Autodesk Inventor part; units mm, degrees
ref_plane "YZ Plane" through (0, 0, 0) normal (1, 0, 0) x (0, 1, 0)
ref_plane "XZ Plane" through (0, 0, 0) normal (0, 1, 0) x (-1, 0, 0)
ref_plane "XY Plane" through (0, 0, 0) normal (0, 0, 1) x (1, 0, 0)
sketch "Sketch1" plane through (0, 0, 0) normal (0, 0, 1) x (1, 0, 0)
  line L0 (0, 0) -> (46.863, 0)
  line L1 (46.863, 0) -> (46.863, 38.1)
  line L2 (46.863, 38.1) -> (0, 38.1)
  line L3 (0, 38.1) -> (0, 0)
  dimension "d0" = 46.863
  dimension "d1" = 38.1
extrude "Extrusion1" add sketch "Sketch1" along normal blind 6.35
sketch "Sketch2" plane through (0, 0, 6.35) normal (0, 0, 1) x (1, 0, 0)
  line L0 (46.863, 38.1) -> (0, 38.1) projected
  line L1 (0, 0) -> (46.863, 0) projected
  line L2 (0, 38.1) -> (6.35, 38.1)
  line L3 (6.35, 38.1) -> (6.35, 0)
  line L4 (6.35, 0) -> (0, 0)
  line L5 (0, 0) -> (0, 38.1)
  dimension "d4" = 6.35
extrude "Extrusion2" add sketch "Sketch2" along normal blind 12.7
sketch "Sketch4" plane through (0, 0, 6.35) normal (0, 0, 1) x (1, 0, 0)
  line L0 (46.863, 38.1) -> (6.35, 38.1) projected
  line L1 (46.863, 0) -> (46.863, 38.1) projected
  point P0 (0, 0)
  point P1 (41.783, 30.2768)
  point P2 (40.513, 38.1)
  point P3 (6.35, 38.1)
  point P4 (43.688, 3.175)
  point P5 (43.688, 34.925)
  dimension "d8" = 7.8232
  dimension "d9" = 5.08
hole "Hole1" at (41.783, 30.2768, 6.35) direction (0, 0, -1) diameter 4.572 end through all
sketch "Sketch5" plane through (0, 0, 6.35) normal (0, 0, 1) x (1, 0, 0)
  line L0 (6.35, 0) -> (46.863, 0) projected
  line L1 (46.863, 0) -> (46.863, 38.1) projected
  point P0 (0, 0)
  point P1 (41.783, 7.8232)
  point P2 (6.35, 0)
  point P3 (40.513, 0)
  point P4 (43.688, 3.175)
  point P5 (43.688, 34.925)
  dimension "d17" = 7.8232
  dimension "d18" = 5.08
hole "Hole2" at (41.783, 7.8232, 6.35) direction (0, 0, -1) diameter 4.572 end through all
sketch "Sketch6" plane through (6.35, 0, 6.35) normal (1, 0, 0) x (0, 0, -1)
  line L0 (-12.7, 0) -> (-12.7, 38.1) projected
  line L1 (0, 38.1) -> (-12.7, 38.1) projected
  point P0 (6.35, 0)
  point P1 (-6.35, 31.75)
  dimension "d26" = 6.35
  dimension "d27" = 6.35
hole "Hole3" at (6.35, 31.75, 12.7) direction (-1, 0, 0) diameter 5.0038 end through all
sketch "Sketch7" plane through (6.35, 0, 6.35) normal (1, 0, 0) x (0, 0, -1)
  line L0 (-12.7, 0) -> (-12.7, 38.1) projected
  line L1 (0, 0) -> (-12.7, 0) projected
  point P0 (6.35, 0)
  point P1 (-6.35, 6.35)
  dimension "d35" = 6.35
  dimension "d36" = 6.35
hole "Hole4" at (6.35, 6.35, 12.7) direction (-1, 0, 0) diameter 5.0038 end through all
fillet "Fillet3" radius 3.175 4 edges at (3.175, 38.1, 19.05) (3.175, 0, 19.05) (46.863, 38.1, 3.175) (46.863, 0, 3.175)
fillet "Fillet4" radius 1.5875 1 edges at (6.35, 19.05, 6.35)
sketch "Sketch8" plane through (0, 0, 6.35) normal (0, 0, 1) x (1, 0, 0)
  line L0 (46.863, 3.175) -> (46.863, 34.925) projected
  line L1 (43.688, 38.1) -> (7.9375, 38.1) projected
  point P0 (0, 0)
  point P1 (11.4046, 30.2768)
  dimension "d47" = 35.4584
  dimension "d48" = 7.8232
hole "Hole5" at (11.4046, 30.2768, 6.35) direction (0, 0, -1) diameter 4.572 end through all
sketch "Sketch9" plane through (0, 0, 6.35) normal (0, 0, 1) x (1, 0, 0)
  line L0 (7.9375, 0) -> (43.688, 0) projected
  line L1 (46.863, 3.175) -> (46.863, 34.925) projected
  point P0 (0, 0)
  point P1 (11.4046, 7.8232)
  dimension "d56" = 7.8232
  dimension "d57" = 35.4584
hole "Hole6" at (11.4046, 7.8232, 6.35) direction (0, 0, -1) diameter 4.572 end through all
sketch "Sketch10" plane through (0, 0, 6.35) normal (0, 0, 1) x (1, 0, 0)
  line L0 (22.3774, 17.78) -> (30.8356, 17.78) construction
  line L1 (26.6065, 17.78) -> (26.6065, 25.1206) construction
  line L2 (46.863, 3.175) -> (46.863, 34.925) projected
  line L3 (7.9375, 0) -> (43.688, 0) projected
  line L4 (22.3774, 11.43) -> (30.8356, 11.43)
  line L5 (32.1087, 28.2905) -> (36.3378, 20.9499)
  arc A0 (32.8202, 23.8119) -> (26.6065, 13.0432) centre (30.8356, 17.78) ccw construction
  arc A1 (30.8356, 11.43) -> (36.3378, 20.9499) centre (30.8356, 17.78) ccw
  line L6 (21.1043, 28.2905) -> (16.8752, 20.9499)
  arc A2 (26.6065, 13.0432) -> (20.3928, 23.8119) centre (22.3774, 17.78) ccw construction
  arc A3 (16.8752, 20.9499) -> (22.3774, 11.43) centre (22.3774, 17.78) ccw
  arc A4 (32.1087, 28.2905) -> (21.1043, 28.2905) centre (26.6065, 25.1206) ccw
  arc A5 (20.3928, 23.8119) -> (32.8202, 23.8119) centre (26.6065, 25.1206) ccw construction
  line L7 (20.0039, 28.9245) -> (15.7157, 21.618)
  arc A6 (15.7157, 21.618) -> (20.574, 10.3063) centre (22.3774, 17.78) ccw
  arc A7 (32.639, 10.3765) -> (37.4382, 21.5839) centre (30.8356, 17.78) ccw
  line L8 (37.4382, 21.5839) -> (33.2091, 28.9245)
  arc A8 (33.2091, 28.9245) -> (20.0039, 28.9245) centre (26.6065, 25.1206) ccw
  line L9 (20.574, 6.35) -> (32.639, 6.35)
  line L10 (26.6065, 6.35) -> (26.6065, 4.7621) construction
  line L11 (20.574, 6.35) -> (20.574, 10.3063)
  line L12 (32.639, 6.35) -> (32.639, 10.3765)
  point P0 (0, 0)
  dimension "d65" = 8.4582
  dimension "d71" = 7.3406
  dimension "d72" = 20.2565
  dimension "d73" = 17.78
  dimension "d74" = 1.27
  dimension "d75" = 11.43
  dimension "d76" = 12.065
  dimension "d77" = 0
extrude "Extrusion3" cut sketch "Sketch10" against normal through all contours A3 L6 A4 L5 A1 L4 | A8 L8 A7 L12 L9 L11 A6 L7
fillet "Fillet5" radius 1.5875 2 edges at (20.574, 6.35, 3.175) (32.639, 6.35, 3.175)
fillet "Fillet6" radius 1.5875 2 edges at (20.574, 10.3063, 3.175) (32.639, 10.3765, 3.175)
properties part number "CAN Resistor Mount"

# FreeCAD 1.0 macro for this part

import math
import FreeCAD as App
import Part
import Sketcher
Q = App.Units.Quantity


def edges_at(feature, points):
    """Names of the edges that pass closest to the given points."""
    edges = feature.Shape.Edges
    near = lambda p: min(range(len(edges)), key=lambda i: edges[i].distToShape(Part.Vertex(*p))[0])
    return sorted({f"Edge{near(p) + 1}" for p in points})

doc = App.newDocument("Part")
params = doc.addObject("Spreadsheet::Sheet", "Params")
for row, (alias, value) in enumerate([
    ("sketch1_height", "1.5 in"),
    ("sketch1_width", "1.845 in"),
    ("pad1_length", "0.25 in"),
    ("sketch2_width", "0.25 in"),
    ("sketch2_height", "1.5 in"),
    ("pad2_length", "0.5 in"),
    ("sketch3_diameter", "0.18 in"),
    ("hole_diameter", "0.18 in"),
    ("sketch4_diameter", "0.18 in"),
    ("hole2_diameter", "0.18 in"),
    ("sketch5_diameter", "0.197 in"),
    ("hole3_diameter", "0.197 in"),
    ("sketch6_diameter", "0.197 in"),
    ("hole4_diameter", "0.197 in"),
    ("fillet_radius", "0.125 in"),
    ("fillet2_radius", "0.0625 in"),
    ("sketch7_diameter", "0.18 in"),
    ("hole5_diameter", "0.18 in"),
    ("sketch8_diameter", "0.18 in"),
    ("hole6_diameter", "0.18 in"),
    ("sketch9_radius", "0.3 in"),
    ("sketch9_width", "0.475 in"),
    ("fillet3_radius", "0.0625 in"),
    ("fillet4_radius", "0.0625 in"),
], start=1):
    params.set(f"A{row}", alias)
    params.set(f"B{row}", "=" + value)
    params.setAlias(f"B{row}", alias)

body = doc.addObject("PartDesign::Body", "Body")

sketch1 = body.newObject("Sketcher::SketchObject", "Sketch")
sketch1.AttachmentSupport = (doc.getObject("XY_Plane"), [""])
sketch1.MapMode = "FlatFace"
sketch1.addGeometry([
    Part.LineSegment(App.Vector(0, 38, 0), App.Vector(0, 0, 0)),
    Part.LineSegment(App.Vector(0, 0, 0), App.Vector(47, 0, 0)),
    Part.LineSegment(App.Vector(47, 0, 0), App.Vector(47, 38, 0)),
    Part.LineSegment(App.Vector(47, 38, 0), App.Vector(0, 38, 0)),
], False)
sketch1.addConstraint([
    Sketcher.Constraint("Coincident", 0, 2, 1, 1),
    Sketcher.Constraint("Coincident", 1, 2, 2, 1),
    Sketcher.Constraint("Coincident", 2, 2, 3, 1),
    Sketcher.Constraint("Coincident", 3, 2, 0, 1),
    Sketcher.Constraint("Vertical", 0),
    Sketcher.Constraint("Horizontal", 1),
    Sketcher.Constraint("Vertical", 2),
    Sketcher.Constraint("Horizontal", 3),
    Sketcher.Constraint("Coincident", 0, 2, -1, 1),
    Sketcher.Constraint("DistanceY", 0, 2, 0, 1, Q("1.5 in")),
    Sketcher.Constraint("DistanceX", 1, 1, 1, 2, Q("1.845 in")),
])
sketch1.setExpression("Constraints[9]", "Params.sketch1_height")
sketch1.setExpression("Constraints[10]", "Params.sketch1_width")
pad1 = body.newObject("PartDesign::Pad", "Pad")
pad1.Profile = sketch1
pad1.setExpression("Length", "Params.pad1_length")

sketch2 = body.newObject("Sketcher::SketchObject", "Sketch001")
sketch2.AttachmentSupport = (doc.getObject("XY_Plane"), [""])
sketch2.MapMode = "FlatFace"
sketch2.AttachmentOffset = App.Placement(App.Vector(0, 0, 0.25 * 25.4), App.Rotation())
sketch2.addGeometry([
    Part.LineSegment(App.Vector(6, 0, 0), App.Vector(6, 38, 0)),
    Part.LineSegment(App.Vector(6, 38, 0), App.Vector(0, 38, 0)),
    Part.LineSegment(App.Vector(0, 38, 0), App.Vector(0, 0, 0)),
    Part.LineSegment(App.Vector(0, 0, 0), App.Vector(6, 0, 0)),
], False)
sketch2.addConstraint([
    Sketcher.Constraint("Coincident", 0, 2, 1, 1),
    Sketcher.Constraint("Coincident", 1, 2, 2, 1),
    Sketcher.Constraint("Coincident", 2, 2, 3, 1),
    Sketcher.Constraint("Coincident", 3, 2, 0, 1),
    Sketcher.Constraint("Vertical", 0),
    Sketcher.Constraint("Horizontal", 1),
    Sketcher.Constraint("Vertical", 2),
    Sketcher.Constraint("Horizontal", 3),
    Sketcher.Constraint("Coincident", 2, 2, -1, 1),
    Sketcher.Constraint("DistanceX", 1, 2, 1, 1, Q("0.25 in")),
    Sketcher.Constraint("DistanceY", 0, 1, 0, 2, Q("1.5 in")),
])
sketch2.setExpression("Constraints[9]", "Params.sketch2_width")
sketch2.setExpression("Constraints[10]", "Params.sketch2_height")
pad2 = body.newObject("PartDesign::Pad", "Pad001")
pad2.Profile = sketch2
pad2.setExpression("Length", "Params.pad2_length")

sketch3 = body.newObject("Sketcher::SketchObject", "Sketch002")
sketch3.AttachmentSupport = (doc.getObject("XY_Plane"), [""])
sketch3.MapMode = "FlatFace"
sketch3.AttachmentOffset = App.Placement(App.Vector(0, 0, 0.25 * 25.4), App.Rotation())
sketch3.addGeometry(Part.Circle(App.Vector(41.8, 30.3, 0), App.Vector(0, 0, 1), 2.3), False)
sketch3.addConstraint([
    Sketcher.Constraint("Diameter", 0, Q("0.18 in")),
    Sketcher.Constraint("DistanceX", -1, 1, 0, 3, Q("1.645 in")),
    Sketcher.Constraint("DistanceY", -1, 1, 0, 3, Q("1.192 in")),
])
sketch3.setExpression("Constraints[0]", "Params.sketch3_diameter")
doc.recompute()
hole = body.newObject("PartDesign::Hole", "Hole")
hole.Profile = sketch3
hole.ThreadType = "None"
hole.setExpression("Diameter", "Params.hole_diameter")
hole.DepthType = "ThroughAll"

sketch4 = body.newObject("Sketcher::SketchObject", "Sketch003")
sketch4.AttachmentSupport = (doc.getObject("XY_Plane"), [""])
sketch4.MapMode = "FlatFace"
sketch4.AttachmentOffset = App.Placement(App.Vector(0, 0, 0.25 * 25.4), App.Rotation())
sketch4.addGeometry(Part.Circle(App.Vector(41.8, 7.8, 0), App.Vector(0, 0, 1), 2.3), False)
sketch4.addConstraint([
    Sketcher.Constraint("Diameter", 0, Q("0.18 in")),
    Sketcher.Constraint("DistanceX", -1, 1, 0, 3, Q("1.645 in")),
    Sketcher.Constraint("DistanceY", -1, 1, 0, 3, Q("0.308 in")),
])
sketch4.setExpression("Constraints[0]", "Params.sketch4_diameter")
doc.recompute()
hole2 = body.newObject("PartDesign::Hole", "Hole001")
hole2.Profile = sketch4
hole2.ThreadType = "None"
hole2.setExpression("Diameter", "Params.hole2_diameter")
hole2.DepthType = "ThroughAll"

sketch5 = body.newObject("Sketcher::SketchObject", "Sketch004")
sketch5.AttachmentSupport = (doc.getObject("YZ_Plane"), [""])
sketch5.MapMode = "FlatFace"
sketch5.AttachmentOffset = App.Placement(App.Vector(0, 0, 0.25 * 25.4), App.Rotation())
sketch5.addGeometry(Part.Circle(App.Vector(31.8, 12.7, 0), App.Vector(0, 0, 1), 2.5), False)
sketch5.addConstraint([
    Sketcher.Constraint("Diameter", 0, Q("0.197 in")),
    Sketcher.Constraint("DistanceY", -1, 1, 0, 3, Q("0.5 in")),
    Sketcher.Constraint("DistanceX", -1, 1, 0, 3, Q("1.25 in")),
])
sketch5.setExpression("Constraints[0]", "Params.sketch5_diameter")
doc.recompute()
hole3 = body.newObject("PartDesign::Hole", "Hole002")
hole3.Profile = sketch5
hole3.ThreadType = "None"
hole3.setExpression("Diameter", "Params.hole3_diameter")
hole3.DepthType = "ThroughAll"

sketch6 = body.newObject("Sketcher::SketchObject", "Sketch005")
sketch6.AttachmentSupport = (doc.getObject("YZ_Plane"), [""])
sketch6.MapMode = "FlatFace"
sketch6.AttachmentOffset = App.Placement(App.Vector(0, 0, 0.25 * 25.4), App.Rotation())
sketch6.addGeometry(Part.Circle(App.Vector(6.3, 12.7, 0), App.Vector(0, 0, 1), 2.5), False)
sketch6.addConstraint([
    Sketcher.Constraint("Diameter", 0, Q("0.197 in")),
    Sketcher.Constraint("DistanceY", -1, 1, 0, 3, Q("0.5 in")),
    Sketcher.Constraint("DistanceX", -1, 1, 0, 3, Q("0.25 in")),
])
sketch6.setExpression("Constraints[0]", "Params.sketch6_diameter")
doc.recompute()
hole4 = body.newObject("PartDesign::Hole", "Hole003")
hole4.Profile = sketch6
hole4.ThreadType = "None"
hole4.setExpression("Diameter", "Params.hole4_diameter")
hole4.DepthType = "ThroughAll"
doc.recompute()

fillet = body.newObject("PartDesign::Fillet", "Fillet")
fillet.Base = (hole4, edges_at(hole4, [
    (3.175, 38.1, 19.05),
    (3.175, 0, 19.05),
    (46.863, 38.1, 3.175),
    (46.863, 0, 3.175),
]))
fillet.setExpression("Radius", "Params.fillet_radius")
doc.recompute()

fillet2 = body.newObject("PartDesign::Fillet", "Fillet001")
fillet2.Base = (fillet, edges_at(fillet, [(6.35, 19.05, 6.35)]))
fillet2.setExpression("Radius", "Params.fillet2_radius")

sketch7 = body.newObject("Sketcher::SketchObject", "Sketch006")
sketch7.AttachmentSupport = (doc.getObject("XY_Plane"), [""])
sketch7.MapMode = "FlatFace"
sketch7.AttachmentOffset = App.Placement(App.Vector(0, 0, 0.25 * 25.4), App.Rotation())
sketch7.addGeometry(Part.Circle(App.Vector(11.4, 30.3, 0), App.Vector(0, 0, 1), 2.3), False)
sketch7.addConstraint([
    Sketcher.Constraint("Diameter", 0, Q("0.18 in")),
    Sketcher.Constraint("DistanceX", -1, 1, 0, 3, Q("0.449 in")),
    Sketcher.Constraint("DistanceY", -1, 1, 0, 3, Q("1.192 in")),
])
sketch7.setExpression("Constraints[0]", "Params.sketch7_diameter")
doc.recompute()
hole5 = body.newObject("PartDesign::Hole", "Hole004")
hole5.Profile = sketch7
hole5.ThreadType = "None"
hole5.setExpression("Diameter", "Params.hole5_diameter")
hole5.DepthType = "ThroughAll"

sketch8 = body.newObject("Sketcher::SketchObject", "Sketch007")
sketch8.AttachmentSupport = (doc.getObject("XY_Plane"), [""])
sketch8.MapMode = "FlatFace"
sketch8.AttachmentOffset = App.Placement(App.Vector(0, 0, 0.25 * 25.4), App.Rotation())
sketch8.addGeometry(Part.Circle(App.Vector(11.4, 7.8, 0), App.Vector(0, 0, 1), 2.3), False)
sketch8.addConstraint([
    Sketcher.Constraint("Diameter", 0, Q("0.18 in")),
    Sketcher.Constraint("DistanceX", -1, 1, 0, 3, Q("0.449 in")),
    Sketcher.Constraint("DistanceY", -1, 1, 0, 3, Q("0.308 in")),
])
sketch8.setExpression("Constraints[0]", "Params.sketch8_diameter")
doc.recompute()
hole6 = body.newObject("PartDesign::Hole", "Hole005")
hole6.Profile = sketch8
hole6.ThreadType = "None"
hole6.setExpression("Diameter", "Params.hole6_diameter")
hole6.DepthType = "ThroughAll"

sketch9 = body.newObject("Sketcher::SketchObject", "Sketch008")
sketch9.AttachmentSupport = (doc.getObject("XY_Plane"), [""])
sketch9.MapMode = "FlatFace"
sketch9.AttachmentOffset = App.Placement(App.Vector(0, 0, 0.25 * 25.4), App.Rotation())
sketch9.addGeometry([
    Part.ArcOfCircle(Part.Circle(App.Vector(26.6, 25.1, 0), App.Vector(0, 0, 1), 7.6), math.radians(30), math.radians(150)),
    Part.LineSegment(App.Vector(20, 28.9, 0), App.Vector(15.7, 21.6, 0)),
    Part.ArcOfCircle(Part.Circle(App.Vector(22.4, 17.8, 0), App.Vector(0, 0, 1), 7.7), math.radians(150), math.radians(256)),
    Part.LineSegment(App.Vector(20.6, 10.3, 0), App.Vector(20.6, 6.3, 0)),
    Part.LineSegment(App.Vector(20.6, 6.3, 0), App.Vector(32.6, 6.3, 0)),
    Part.LineSegment(App.Vector(32.6, 6.3, 0), App.Vector(32.6, 10.4, 0)),
    Part.ArcOfCircle(Part.Circle(App.Vector(30.8, 17.8, 0), App.Vector(0, 0, 1), 7.6), math.radians(-76), math.radians(30)),
    Part.LineSegment(App.Vector(37.4, 21.6, 0), App.Vector(33.2, 28.9, 0)),
], False)
sketch9.addConstraint([
    Sketcher.Constraint("Coincident", 0, 2, 1, 1),
    Sketcher.Constraint("Coincident", 1, 2, 2, 1),
    Sketcher.Constraint("Coincident", 2, 2, 3, 1),
    Sketcher.Constraint("Coincident", 3, 2, 4, 1),
    Sketcher.Constraint("Coincident", 4, 2, 5, 1),
    Sketcher.Constraint("Coincident", 5, 2, 6, 1),
    Sketcher.Constraint("Tangent", 6, 2, 7, 1),
    Sketcher.Constraint("Tangent", 7, 2, 0, 1),
    Sketcher.Constraint("Vertical", 3),
    Sketcher.Constraint("Horizontal", 4),
    Sketcher.Constraint("Vertical", 5),
    Sketcher.Constraint("Equal", 0, 6),
    Sketcher.Constraint("Horizontal", 2, 3, 6, 3),
    Sketcher.Constraint("Horizontal", 0, 2, 7, 2),
    Sketcher.Constraint("DistanceY", -1, 1, 2, 3, Q("0.7 in")),
    Sketcher.Constraint("Radius", 0, Q("0.3 in")),
    Sketcher.Constraint("DistanceX", 4, 1, 4, 2, Q("0.475 in")),
    Sketcher.Constraint("DistanceY", 3, 2, 2, 3, Q("0.45 in")),
    Sketcher.Constraint("DistanceY", 2, 3, 0, 3, Q("0.289 in")),
    Sketcher.Constraint("DistanceX", 2, 3, 6, 3, Q("0.333 in")),
    Sketcher.Constraint("DistanceX", -1, 1, 2, 2, Q("0.81 in")),
    Sketcher.Constraint("Radius", 2, 7.6882),
    Sketcher.Constraint("DistanceX", -1, 1, 2, 3, Q("0.881 in")),
    Sketcher.Constraint("DistanceY", 2, 2, 0, 2, Q("0.733 in")),
    Sketcher.Constraint("DistanceY", -1, 1, 1, 2, Q("0.8511 in")),
])
sketch9.setExpression("Constraints[15]", "Params.sketch9_radius")
sketch9.setExpression("Constraints[16]", "Params.sketch9_width")
pocket1 = body.newObject("PartDesign::Pocket", "Pocket")
pocket1.Profile = sketch9
pocket1.Type = "ThroughAll"
doc.recompute()

fillet3 = body.newObject("PartDesign::Fillet", "Fillet002")
fillet3.Base = (pocket1, edges_at(pocket1, [(20.574, 6.35, 3.175), (32.639, 6.35, 3.175)]))
fillet3.setExpression("Radius", "Params.fillet3_radius")
doc.recompute()

fillet4 = body.newObject("PartDesign::Fillet", "Fillet003")
fillet4.Base = (fillet3, edges_at(fillet3, [(20.574, 10.306, 3.175), (32.639, 10.377, 3.175)]))
fillet4.setExpression("Radius", "Params.fillet4_radius")

doc.recompute()
